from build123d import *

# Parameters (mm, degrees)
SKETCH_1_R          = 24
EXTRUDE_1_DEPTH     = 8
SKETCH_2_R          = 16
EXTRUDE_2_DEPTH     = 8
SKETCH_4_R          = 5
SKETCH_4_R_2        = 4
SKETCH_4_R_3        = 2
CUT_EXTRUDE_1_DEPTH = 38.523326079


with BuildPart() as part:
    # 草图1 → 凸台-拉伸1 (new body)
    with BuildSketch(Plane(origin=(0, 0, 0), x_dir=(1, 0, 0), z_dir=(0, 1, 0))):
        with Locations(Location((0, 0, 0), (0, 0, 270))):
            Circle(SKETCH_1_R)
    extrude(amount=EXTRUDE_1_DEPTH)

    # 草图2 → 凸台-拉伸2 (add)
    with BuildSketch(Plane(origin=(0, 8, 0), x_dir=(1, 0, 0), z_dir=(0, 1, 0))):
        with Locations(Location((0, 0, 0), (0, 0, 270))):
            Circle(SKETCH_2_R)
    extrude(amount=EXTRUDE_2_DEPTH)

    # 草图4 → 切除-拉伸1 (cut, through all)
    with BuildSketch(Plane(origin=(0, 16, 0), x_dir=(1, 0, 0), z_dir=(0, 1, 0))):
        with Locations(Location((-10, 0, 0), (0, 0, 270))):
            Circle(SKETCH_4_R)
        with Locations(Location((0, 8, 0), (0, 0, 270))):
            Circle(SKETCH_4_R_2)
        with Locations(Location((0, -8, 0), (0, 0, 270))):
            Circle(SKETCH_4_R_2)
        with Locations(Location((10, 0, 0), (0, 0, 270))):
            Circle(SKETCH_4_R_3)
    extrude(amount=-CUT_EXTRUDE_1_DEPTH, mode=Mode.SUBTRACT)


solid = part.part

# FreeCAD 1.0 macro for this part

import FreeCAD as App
import Part
import Sketcher
Q = App.Units.Quantity

doc = App.newDocument("Part")
body = doc.addObject("PartDesign::Body", "Body")

# Sketch on XZ plane
sketch1 = body.newObject("Sketcher::SketchObject", "Sketch")
sketch1.AttachmentSupport = (doc.getObject("XZ_Plane"), [""])
sketch1.MapMode = "FlatFace"
sketch1.addGeometry(Part.Circle(App.Vector(0, 0, 0), App.Vector(0, 0, 1), 24), False)
sketch1.addConstraint(Sketcher.Constraint("Coincident", 0, 3, -1, 1))
sketch1.addConstraint(Sketcher.Constraint("Diameter", 0, Q("48 mm")))
pad1 = body.newObject("PartDesign::Pad", "Pad")
pad1.Profile = sketch1
pad1.Length = 8
pad1.Reversed = True

# Sketch on XZ plane
sketch2 = body.newObject("Sketcher::SketchObject", "Sketch001")
sketch2.AttachmentSupport = (doc.getObject("XZ_Plane"), [""])
sketch2.MapMode = "FlatFace"
sketch2.AttachmentOffset = App.Placement(App.Vector(0, 0, -8), App.Rotation())
sketch2.addGeometry(Part.Circle(App.Vector(0, 0, 0), App.Vector(0, 0, 1), 16), False)
sketch2.addConstraint(Sketcher.Constraint("Coincident", 0, 3, -1, 1))
sketch2.addConstraint(Sketcher.Constraint("Diameter", 0, Q("32 mm")))
pad2 = body.newObject("PartDesign::Pad", "Pad001")
pad2.Profile = sketch2
pad2.Length = 8
pad2.Reversed = True

# Sketch on XZ plane
sketch3 = body.newObject("Sketcher::SketchObject", "Sketch002")
sketch3.AttachmentSupport = (doc.getObject("XZ_Plane"), [""])
sketch3.MapMode = "FlatFace"
sketch3.AttachmentOffset = App.Placement(App.Vector(0, 0, -16), App.Rotation())
sketch3.addGeometry(Part.Circle(App.Vector(-10, 0, 0), App.Vector(0, 0, 1), 5), False)
sketch3.addGeometry(Part.Circle(App.Vector(0, -8, 0), App.Vector(0, 0, 1), 4), False)
sketch3.addGeometry(Part.Circle(App.Vector(0, 8, 0), App.Vector(0, 0, 1), 4), False)
sketch3.addGeometry(Part.Circle(App.Vector(10, 0, 0), App.Vector(0, 0, 1), 2), False)
sketch3.addConstraint(Sketcher.Constraint("Equal", 1, 2))
sketch3.addConstraint(Sketcher.Constraint("Symmetric", 1, 3, 2, 3, -1, 1))
sketch3.addConstraint(Sketcher.Constraint("Symmetric", 0, 3, 3, 3, -1, 1))
sketch3.addConstraint(Sketcher.Constraint("PointOnObject", 0, 3, -1))
sketch3.addConstraint(Sketcher.Constraint("PointOnObject", 1, 3, -2))
sketch3.addConstraint(Sketcher.Constraint("Diameter", 0, Q("10 mm")))
sketch3.addConstraint(Sketcher.Constraint("Diameter", 1, Q("8 mm")))
sketch3.addConstraint(Sketcher.Constraint("Diameter", 3, Q("4 mm")))
sketch3.addConstraint(Sketcher.Constraint("DistanceX", 0, 3, -1, 1, Q("10 mm")))
sketch3.addConstraint(Sketcher.Constraint("DistanceY", 1, 3, -1, 1, Q("8 mm")))
pocket1 = body.newObject("PartDesign::Pocket", "Pocket")
pocket1.Profile = sketch3
pocket1.Type = "ThroughAll"
pocket1.Reversed = True

doc.recompute()
